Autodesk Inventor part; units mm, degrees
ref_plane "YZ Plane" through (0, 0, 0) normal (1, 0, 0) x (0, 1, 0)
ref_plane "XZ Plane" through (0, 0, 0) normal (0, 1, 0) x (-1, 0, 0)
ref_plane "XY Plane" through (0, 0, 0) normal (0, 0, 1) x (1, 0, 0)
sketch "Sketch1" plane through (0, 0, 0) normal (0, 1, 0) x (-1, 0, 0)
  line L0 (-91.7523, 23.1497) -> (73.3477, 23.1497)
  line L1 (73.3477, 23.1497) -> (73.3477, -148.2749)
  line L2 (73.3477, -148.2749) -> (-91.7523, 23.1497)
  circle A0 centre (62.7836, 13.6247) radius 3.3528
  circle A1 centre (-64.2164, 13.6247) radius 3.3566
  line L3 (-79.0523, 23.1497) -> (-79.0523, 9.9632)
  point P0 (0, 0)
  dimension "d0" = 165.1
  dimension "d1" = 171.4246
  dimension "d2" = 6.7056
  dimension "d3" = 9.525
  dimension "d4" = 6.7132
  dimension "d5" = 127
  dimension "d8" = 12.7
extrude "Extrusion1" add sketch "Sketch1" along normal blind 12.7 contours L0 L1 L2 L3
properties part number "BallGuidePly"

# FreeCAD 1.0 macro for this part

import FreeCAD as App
import Part
import Sketcher
from FreeCAD import Vector
Q = App.Units.Quantity

doc = App.newDocument("Part")
body = doc.addObject("PartDesign::Body", "Body")

# Sketch on XZ plane
sketch1 = body.newObject("Sketcher::SketchObject", "Sketch")
sketch1.AttachmentSupport = (doc.getObject("XZ_Plane"), [""])
sketch1.MapMode = "FlatFace"
sketch1.addGeometry([
    Part.LineSegment(Vector(-73.3477, 23.1497, 0), Vector(79.0523, 23.1497, 0)),  # 0
    Part.LineSegment(Vector(79.0523, 23.1497, 0), Vector(79.0523, 9.9632, 0)),  # 1
    Part.LineSegment(Vector(79.052304, 9.963196, 0), Vector(-73.3477, -148.2749, 0)),  # 2
    Part.LineSegment(Vector(-73.3477, -148.2749, 0), Vector(-73.3477, 23.1497, 0)),  # 3
    Part.Circle(Vector(64.2164, 13.6247, 0), Vector(0, 0, 1), 3.3566),  # 4
    Part.Circle(Vector(-62.7836, 13.6247, 0), Vector(0, 0, 1), 3.3528),  # 5
], False)
sketch1.addConstraint([
    Sketcher.Constraint("Coincident", 0, 2, 1, 1),
    Sketcher.Constraint("Coincident", 1, 2, 2, 1),
    Sketcher.Constraint("Coincident", 2, 2, 3, 1),
    Sketcher.Constraint("Coincident", 3, 2, 0, 1),
    Sketcher.Constraint("Horizontal", 0),
    Sketcher.Constraint("Vertical", 1),
    Sketcher.Constraint("Vertical", 3),
    Sketcher.Constraint("Horizontal", 4, 3, 5, 3),
    Sketcher.Constraint("Diameter", 5, Q("0.264 in")),
    Sketcher.Constraint("DistanceX", 5, 3, 4, 3, Q("5 in")),
    Sketcher.Constraint("Diameter", 4, Q("0.2643 in")),
    Sketcher.Constraint("DistanceX", 0, 1, 0, 2, Q("6 in")),
    Sketcher.Constraint("DistanceY", 3, 1, 3, 2, Q("6.749 in")),
    Sketcher.Constraint("DistanceY", 4, 3, 0, 2, Q("0.375 in")),
    Sketcher.Constraint("DistanceY", 1, 2, 1, 1, 13.1865),
    Sketcher.Constraint("DistanceX", -1, 1, 4, 3, Q("2.5282 in")),
    Sketcher.Constraint("DistanceY", -1, 1, 4, 3, Q("0.5364 in")),
    Sketcher.Constraint("DistanceX", -1, 1, 0, 2, Q("3.1123 in")),
])
pad1 = body.newObject("PartDesign::Pad", "Pad")
pad1.Profile = sketch1
pad1.Length = Q("0.5 in")
pad1.Reversed = True

doc.recompute()
